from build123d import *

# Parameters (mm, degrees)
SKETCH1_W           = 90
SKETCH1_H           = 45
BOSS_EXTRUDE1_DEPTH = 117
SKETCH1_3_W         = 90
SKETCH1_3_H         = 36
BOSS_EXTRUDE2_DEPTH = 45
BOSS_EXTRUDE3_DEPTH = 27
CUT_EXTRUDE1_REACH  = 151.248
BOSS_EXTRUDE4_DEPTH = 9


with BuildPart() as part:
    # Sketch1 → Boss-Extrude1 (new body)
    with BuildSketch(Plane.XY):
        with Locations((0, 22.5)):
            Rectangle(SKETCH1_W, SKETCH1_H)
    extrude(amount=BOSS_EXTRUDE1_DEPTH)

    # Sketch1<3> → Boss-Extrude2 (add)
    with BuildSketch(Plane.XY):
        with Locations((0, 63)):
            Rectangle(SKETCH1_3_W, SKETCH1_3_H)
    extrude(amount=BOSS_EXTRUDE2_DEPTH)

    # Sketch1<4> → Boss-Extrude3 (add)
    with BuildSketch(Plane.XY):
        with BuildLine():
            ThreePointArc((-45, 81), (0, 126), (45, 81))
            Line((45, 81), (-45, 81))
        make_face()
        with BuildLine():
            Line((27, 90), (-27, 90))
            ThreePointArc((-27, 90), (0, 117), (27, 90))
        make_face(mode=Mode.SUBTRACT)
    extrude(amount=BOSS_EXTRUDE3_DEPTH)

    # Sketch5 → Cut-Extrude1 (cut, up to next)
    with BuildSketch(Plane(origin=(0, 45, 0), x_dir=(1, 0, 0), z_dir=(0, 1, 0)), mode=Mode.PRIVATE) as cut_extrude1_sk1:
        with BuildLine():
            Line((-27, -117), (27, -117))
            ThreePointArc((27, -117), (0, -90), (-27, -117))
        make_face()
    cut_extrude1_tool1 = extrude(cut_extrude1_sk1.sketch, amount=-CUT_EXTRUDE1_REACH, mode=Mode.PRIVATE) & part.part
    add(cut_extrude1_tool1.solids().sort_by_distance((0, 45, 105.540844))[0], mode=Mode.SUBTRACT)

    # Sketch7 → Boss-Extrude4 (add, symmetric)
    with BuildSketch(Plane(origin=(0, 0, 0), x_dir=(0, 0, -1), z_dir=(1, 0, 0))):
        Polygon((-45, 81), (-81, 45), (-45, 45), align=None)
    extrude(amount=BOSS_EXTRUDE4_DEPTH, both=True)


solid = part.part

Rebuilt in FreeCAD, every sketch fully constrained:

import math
import FreeCAD as App
import Part
import Sketcher

V = App.Vector


def add_polygon(sketch, points):
    """Adds a closed chain of lines whose ends are joined by coincident constraints."""
    first, n = sketch.GeometryCount, len(points)
    for a, b in zip(points, points[1:] + points[:1]):
        sketch.addGeometry(Part.LineSegment(App.Vector(*a, 0), App.Vector(*b, 0)), False)
    for i in range(n):
        sketch.addConstraint(Sketcher.Constraint("Coincident", first + i, 2, first + (i + 1) % n, 1))

doc = App.newDocument("Part")
body = doc.addObject("PartDesign::Body", "Body")

# Sketch on XY plane
sketch1 = doc.addObject("Sketcher::SketchObject", "Sketch")
body.addObject(sketch1)
sketch1.AttachmentSupport = (doc.XY_Plane, [""])
sketch1.MapMode = "FlatFace"
add_polygon(sketch1, [(-45, 45), (-45, 0), (45, 0), (45, 45)])  # lines 0-3
sketch1.addConstraint([
    Sketcher.Constraint("Vertical", 0),
    Sketcher.Constraint("Horizontal", 1),
    Sketcher.Constraint("Vertical", 2),
    Sketcher.Constraint("Horizontal", 3),
    Sketcher.Constraint("Symmetric", 0, 2, 1, 2, -1, 1),
    Sketcher.Constraint("DistanceX", 1, 1, 1, 2, 90.0),
    Sketcher.Constraint("DistanceY", 0, 2, 0, 1, 45.0),
])
pad1 = doc.addObject("PartDesign::Pad", "Pad")
body.addObject(pad1)
pad1.Profile = sketch1
pad1.Length = 117

# Sketch on XY plane
sketch2 = doc.addObject("Sketcher::SketchObject", "Sketch001")
body.addObject(sketch2)
sketch2.AttachmentSupport = (doc.XY_Plane, [""])
sketch2.MapMode = "FlatFace"
add_polygon(sketch2, [(-45, 81), (-45, 45), (45, 45), (45, 81)])  # lines 0-3
sketch2.addConstraint([
    Sketcher.Constraint("Vertical", 0),
    Sketcher.Constraint("Horizontal", 1),
    Sketcher.Constraint("Vertical", 2),
    Sketcher.Constraint("Horizontal", 3),
    Sketcher.Constraint("DistanceX", 1, 1, 1, 2, 90.0),
    Sketcher.Constraint("DistanceY", 0, 2, 0, 1, 36.0),
    Sketcher.Constraint("DistanceX", 0, 2, -1, 1, 45.0),
    Sketcher.Constraint("DistanceY", -1, 1, 0, 2, 45.0),
])
pad2 = doc.addObject("PartDesign::Pad", "Pad001")
body.addObject(pad2)
pad2.Profile = sketch2
pad2.Length = 45

# Sketch on XY plane
sketch3 = doc.addObject("Sketcher::SketchObject", "Sketch002")
body.addObject(sketch3)
sketch3.AttachmentSupport = (doc.XY_Plane, [""])
sketch3.MapMode = "FlatFace"
sketch3.addGeometry([
    Part.ArcOfCircle(Part.Circle(V(0, 81, 0), V(0, 0, 1), 45), math.radians(0), math.radians(180)),
    Part.LineSegment(V(-45, 81, 0), V(45, 81, 0)),
    Part.LineSegment(V(27, 90, 0), V(-27, 90, 0)),
    Part.ArcOfCircle(Part.Circle(V(0, 90, 0), V(0, 0, 1), 27), math.radians(0), math.radians(180)),
], False)
sketch3.addConstraint([
    Sketcher.Constraint("Coincident", 0, 1, 1, 2),
    Sketcher.Constraint("Coincident", 1, 1, 0, 2),
    Sketcher.Constraint("Coincident", 2, 1, 3, 1),
    Sketcher.Constraint("Coincident", 3, 2, 2, 2),
    Sketcher.Constraint("Horizontal", 1),
    Sketcher.Constraint("Horizontal", 2),
    Sketcher.Constraint("PointOnObject", 0, 3, -2),
    Sketcher.Constraint("PointOnObject", 3, 3, -2),
    Sketcher.Constraint("Horizontal", 3, 3, 2, 1),
    Sketcher.Constraint("Radius", 0, 45.0),
    Sketcher.Constraint("Radius", 3, 27.0),
    Sketcher.Constraint("DistanceY", -1, 1, 0, 3, 81.0),
    Sketcher.Constraint("DistanceY", -1, 1, 3, 3, 90.0),
    Sketcher.Constraint("DistanceY", -1, 1, 0, 1, 81.0),
])
pad3 = doc.addObject("PartDesign::Pad", "Pad002")
body.addObject(pad3)
pad3.Profile = sketch3
pad3.Length = 27

# Sketch on XZ plane
sketch4 = doc.addObject("Sketcher::SketchObject", "Sketch003")
body.addObject(sketch4)
sketch4.AttachmentSupport = (doc.XZ_Plane, [""])
sketch4.MapMode = "FlatFace"
sketch4.AttachmentOffset = App.Placement(V(0, 0, -45), App.Rotation())
sketch4.addGeometry([
    Part.LineSegment(V(-27, 117, 0), V(27, 117, 0)),
    Part.ArcOfCircle(Part.Circle(V(0, 117, 0), V(0, 0, 1), 27), math.radians(180), math.radians(360)),
], False)
sketch4.addConstraint([
    Sketcher.Constraint("Coincident", 0, 1, 1, 1),
    Sketcher.Constraint("Coincident", 1, 2, 0, 2),
    Sketcher.Constraint("Horizontal", 0),
    Sketcher.Constraint("PointOnObject", 1, 3, -2),
    Sketcher.Constraint("Horizontal", 1, 3, 0, 1),
    Sketcher.Constraint("Radius", 1, 27.0),
    Sketcher.Constraint("DistanceY", -1, 1, 1, 3, 117.0),
])
pocket1 = doc.addObject("PartDesign::Pocket", "Pocket")
body.addObject(pocket1)
pocket1.Profile = sketch4
pocket1.Type = "UpToFirst"
pocket1.Reversed = True

# Sketch on YZ plane
sketch5 = doc.addObject("Sketcher::SketchObject", "Sketch004")
body.addObject(sketch5)
sketch5.AttachmentSupport = (doc.YZ_Plane, [""])
sketch5.MapMode = "FlatFace"
add_polygon(sketch5, [(81, 45), (45, 81), (45, 45)])  # lines 0-2
sketch5.addConstraint([
    Sketcher.Constraint("Vertical", 1),
    Sketcher.Constraint("Horizontal", 2),
    Sketcher.Constraint("Equal", 2, 1),
    Sketcher.Constraint("DistanceX", 2, 1, 2, 2, 36.0),
    Sketcher.Constraint("DistanceX", -1, 1, 0, 2, 45.0),
    Sketcher.Constraint("DistanceY", -1, 1, 0, 2, 81.0),
])
pad4 = doc.addObject("PartDesign::Pad", "Pad003")
body.addObject(pad4)
pad4.Profile = sketch5
pad4.Length = 18
pad4.Midplane = True

doc.recompute()
